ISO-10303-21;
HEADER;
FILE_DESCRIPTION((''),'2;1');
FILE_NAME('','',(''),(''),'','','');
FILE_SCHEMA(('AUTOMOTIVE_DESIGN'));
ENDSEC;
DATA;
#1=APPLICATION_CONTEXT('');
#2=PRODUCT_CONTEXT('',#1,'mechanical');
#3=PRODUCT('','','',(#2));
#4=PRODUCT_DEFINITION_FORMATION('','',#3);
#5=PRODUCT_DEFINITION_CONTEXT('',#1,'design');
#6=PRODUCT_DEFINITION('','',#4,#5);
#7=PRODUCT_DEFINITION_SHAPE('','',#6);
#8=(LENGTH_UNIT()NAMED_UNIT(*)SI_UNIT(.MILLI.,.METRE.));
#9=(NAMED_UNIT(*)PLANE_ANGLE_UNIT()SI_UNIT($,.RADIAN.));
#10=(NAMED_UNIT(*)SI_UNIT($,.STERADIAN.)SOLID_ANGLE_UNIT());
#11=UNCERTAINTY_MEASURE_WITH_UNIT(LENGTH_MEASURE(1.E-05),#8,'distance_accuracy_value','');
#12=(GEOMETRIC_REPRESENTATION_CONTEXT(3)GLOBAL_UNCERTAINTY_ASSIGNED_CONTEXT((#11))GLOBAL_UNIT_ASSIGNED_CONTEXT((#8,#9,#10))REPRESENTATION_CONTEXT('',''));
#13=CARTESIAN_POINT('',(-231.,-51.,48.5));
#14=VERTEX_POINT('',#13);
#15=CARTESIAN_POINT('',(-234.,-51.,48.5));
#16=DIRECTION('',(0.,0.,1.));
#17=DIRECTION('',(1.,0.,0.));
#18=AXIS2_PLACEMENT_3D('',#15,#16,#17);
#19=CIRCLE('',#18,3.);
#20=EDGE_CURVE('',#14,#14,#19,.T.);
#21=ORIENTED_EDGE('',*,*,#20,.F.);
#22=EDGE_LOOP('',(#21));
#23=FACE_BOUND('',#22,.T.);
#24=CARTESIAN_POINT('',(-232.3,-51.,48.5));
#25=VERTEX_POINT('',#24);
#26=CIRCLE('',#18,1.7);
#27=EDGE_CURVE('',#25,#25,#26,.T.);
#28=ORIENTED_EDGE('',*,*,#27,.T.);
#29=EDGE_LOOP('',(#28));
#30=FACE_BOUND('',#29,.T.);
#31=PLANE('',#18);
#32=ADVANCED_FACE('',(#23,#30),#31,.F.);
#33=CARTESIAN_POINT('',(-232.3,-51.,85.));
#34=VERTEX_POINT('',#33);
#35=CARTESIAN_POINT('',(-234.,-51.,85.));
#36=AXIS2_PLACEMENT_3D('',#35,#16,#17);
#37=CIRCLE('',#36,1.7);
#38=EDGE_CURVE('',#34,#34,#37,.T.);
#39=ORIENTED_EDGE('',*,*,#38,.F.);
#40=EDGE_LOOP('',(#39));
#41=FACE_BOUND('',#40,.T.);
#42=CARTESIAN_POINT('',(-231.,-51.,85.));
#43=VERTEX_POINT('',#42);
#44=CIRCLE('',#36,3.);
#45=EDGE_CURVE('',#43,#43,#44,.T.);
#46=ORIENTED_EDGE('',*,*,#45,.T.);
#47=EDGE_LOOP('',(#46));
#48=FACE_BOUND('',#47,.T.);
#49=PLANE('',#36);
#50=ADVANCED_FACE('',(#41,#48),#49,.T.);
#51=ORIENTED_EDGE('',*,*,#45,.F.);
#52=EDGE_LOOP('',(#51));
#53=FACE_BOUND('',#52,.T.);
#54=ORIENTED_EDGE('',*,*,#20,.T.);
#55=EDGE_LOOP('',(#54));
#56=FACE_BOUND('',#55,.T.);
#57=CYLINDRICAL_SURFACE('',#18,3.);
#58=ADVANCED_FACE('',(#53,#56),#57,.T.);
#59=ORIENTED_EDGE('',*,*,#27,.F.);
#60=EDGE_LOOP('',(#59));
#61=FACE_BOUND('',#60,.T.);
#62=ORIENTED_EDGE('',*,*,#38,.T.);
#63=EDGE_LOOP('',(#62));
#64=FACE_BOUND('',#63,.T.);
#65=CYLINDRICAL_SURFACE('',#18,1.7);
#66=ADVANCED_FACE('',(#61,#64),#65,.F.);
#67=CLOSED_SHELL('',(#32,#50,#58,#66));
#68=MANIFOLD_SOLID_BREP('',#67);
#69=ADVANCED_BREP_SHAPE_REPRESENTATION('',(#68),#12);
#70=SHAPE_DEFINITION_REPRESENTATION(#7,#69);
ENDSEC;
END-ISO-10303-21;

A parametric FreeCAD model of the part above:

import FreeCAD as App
import Part
import Sketcher

V = App.Vector
Q = App.Units.Quantity

doc = App.newDocument("Part")
body = doc.addObject("PartDesign::Body", "Body")

sketch1 = body.newObject("Sketcher::SketchObject", "Sketch")
sketch1.AttachmentSupport = (doc.getObject("XY_Plane"), [""])
sketch1.MapMode = "FlatFace"
sketch1.AttachmentOffset = App.Placement(V(0, 0, 85), App.Rotation())
sketch1.addGeometry(Part.Circle(V(-234, -51, 0), V(0, 0, 1), 3), False)
sketch1.addGeometry(Part.Circle(V(-234, -51, 0), V(0, 0, 1), 1.7), False)
sketch1.addConstraint(Sketcher.Constraint("Coincident", 1, 3, 0, 3))
sketch1.addConstraint(Sketcher.Constraint("Diameter", 0, Q("6 mm")))
sketch1.addConstraint(Sketcher.Constraint("Diameter", 1, Q("3.4 mm")))
sketch1.addConstraint(Sketcher.Constraint("DistanceX", 0, 3, -1, 1, Q("234 mm")))
sketch1.addConstraint(Sketcher.Constraint("DistanceY", 0, 3, -1, 1, Q("51 mm")))
pad1 = body.newObject("PartDesign::Pad", "Pad")
pad1.Profile = sketch1
pad1.Length = 36.5
pad1.Reversed = True

doc.recompute()
